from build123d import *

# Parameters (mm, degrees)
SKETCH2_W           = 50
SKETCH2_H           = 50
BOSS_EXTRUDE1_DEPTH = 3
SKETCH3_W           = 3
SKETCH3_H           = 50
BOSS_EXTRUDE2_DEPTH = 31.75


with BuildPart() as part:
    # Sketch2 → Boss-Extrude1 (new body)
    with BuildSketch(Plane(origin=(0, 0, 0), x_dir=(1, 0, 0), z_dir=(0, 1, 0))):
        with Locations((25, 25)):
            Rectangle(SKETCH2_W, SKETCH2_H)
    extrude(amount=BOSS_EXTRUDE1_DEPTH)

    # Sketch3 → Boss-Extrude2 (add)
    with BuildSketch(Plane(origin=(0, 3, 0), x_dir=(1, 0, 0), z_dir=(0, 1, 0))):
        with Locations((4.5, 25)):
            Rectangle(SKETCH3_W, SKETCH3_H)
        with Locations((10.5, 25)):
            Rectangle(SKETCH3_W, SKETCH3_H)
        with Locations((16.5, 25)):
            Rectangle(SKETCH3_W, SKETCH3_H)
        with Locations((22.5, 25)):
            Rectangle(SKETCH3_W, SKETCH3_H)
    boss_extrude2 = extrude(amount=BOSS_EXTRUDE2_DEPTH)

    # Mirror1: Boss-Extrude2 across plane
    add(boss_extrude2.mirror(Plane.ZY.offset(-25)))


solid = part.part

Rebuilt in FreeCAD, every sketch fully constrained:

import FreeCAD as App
import Part
import Sketcher

V = App.Vector
Q = App.Units.Quantity

doc = App.newDocument("Part")
body = doc.addObject("PartDesign::Body", "Body")

# Sketch on XZ plane
sketch1 = body.newObject("Sketcher::SketchObject", "Sketch")
sketch1.AttachmentSupport = (doc.getObject("XZ_Plane"), [""])
sketch1.MapMode = "FlatFace"
sketch1.addGeometry(Part.LineSegment(V(0, -50, 0), V(0, 0, 0)), False)
sketch1.addGeometry(Part.LineSegment(V(0, 0, 0), V(50, 0, 0)), False)
sketch1.addGeometry(Part.LineSegment(V(50, 0, 0), V(50, -50, 0)), False)
sketch1.addGeometry(Part.LineSegment(V(50, -50, 0), V(0, -50, 0)), False)
sketch1.addConstraint(Sketcher.Constraint("Coincident", 0, 2, 1, 1))
sketch1.addConstraint(Sketcher.Constraint("Coincident", 1, 2, 2, 1))
sketch1.addConstraint(Sketcher.Constraint("Coincident", 2, 2, 3, 1))
sketch1.addConstraint(Sketcher.Constraint("Coincident", 3, 2, 0, 1))
sketch1.addConstraint(Sketcher.Constraint("Vertical", 0))
sketch1.addConstraint(Sketcher.Constraint("Horizontal", 1))
sketch1.addConstraint(Sketcher.Constraint("Vertical", 2))
sketch1.addConstraint(Sketcher.Constraint("Horizontal", 3))
sketch1.addConstraint(Sketcher.Constraint("Coincident", 0, 2, -1, 1))
sketch1.addConstraint(Sketcher.Constraint("Equal", 3, 0))
sketch1.addConstraint(Sketcher.Constraint("DistanceX", 1, 1, 1, 2, Q("50 mm")))
pad1 = body.newObject("PartDesign::Pad", "Pad")
pad1.Profile = sketch1
pad1.Length = 3
pad1.Reversed = True

# Sketch on XZ plane
sketch2 = body.newObject("Sketcher::SketchObject", "Sketch001")
sketch2.AttachmentSupport = (doc.getObject("XZ_Plane"), [""])
sketch2.MapMode = "FlatFace"
sketch2.AttachmentOffset = App.Placement(V(0, 0, -3), App.Rotation())
sketch2.addGeometry(Part.LineSegment(V(3, -50, 0), V(3, 0, 0)), False)
sketch2.addGeometry(Part.LineSegment(V(3, 0, 0), V(6, 0, 0)), False)
sketch2.addGeometry(Part.LineSegment(V(6, 0, 0), V(6, -50, 0)), False)
sketch2.addGeometry(Part.LineSegment(V(6, -50, 0), V(3, -50, 0)), False)
sketch2.addGeometry(Part.LineSegment(V(9, -50, 0), V(9, 0, 0)), False)
sketch2.addGeometry(Part.LineSegment(V(9, 0, 0), V(12, 0, 0)), False)
sketch2.addGeometry(Part.LineSegment(V(12, 0, 0), V(12, -50, 0)), False)
sketch2.addGeometry(Part.LineSegment(V(12, -50, 0), V(9, -50, 0)), False)
sketch2.addGeometry(Part.LineSegment(V(15, -50, 0), V(15, 0, 0)), False)
sketch2.addGeometry(Part.LineSegment(V(15, 0, 0), V(18, 0, 0)), False)
sketch2.addGeometry(Part.LineSegment(V(18, 0, 0), V(18, -50, 0)), False)
sketch2.addGeometry(Part.LineSegment(V(18, -50, 0), V(15, -50, 0)), False)
sketch2.addGeometry(Part.LineSegment(V(21, -50, 0), V(21, 0, 0)), False)
sketch2.addGeometry(Part.LineSegment(V(21, 0, 0), V(24, 0, 0)), False)
sketch2.addGeometry(Part.LineSegment(V(24, 0, 0), V(24, -50, 0)), False)
sketch2.addGeometry(Part.LineSegment(V(24, -50, 0), V(21, -50, 0)), False)
sketch2.addConstraint(Sketcher.Constraint("Coincident", 0, 2, 1, 1))
sketch2.addConstraint(Sketcher.Constraint("Coincident", 1, 2, 2, 1))
sketch2.addConstraint(Sketcher.Constraint("Coincident", 2, 2, 3, 1))
sketch2.addConstraint(Sketcher.Constraint("Coincident", 3, 2, 0, 1))
sketch2.addConstraint(Sketcher.Constraint("Coincident", 4, 2, 5, 1))
sketch2.addConstraint(Sketcher.Constraint("Coincident", 5, 2, 6, 1))
sketch2.addConstraint(Sketcher.Constraint("Coincident", 6, 2, 7, 1))
sketch2.addConstraint(Sketcher.Constraint("Coincident", 7, 2, 4, 1))
sketch2.addConstraint(Sketcher.Constraint("Coincident", 8, 2, 9, 1))
sketch2.addConstraint(Sketcher.Constraint("Coincident", 9, 2, 10, 1))
sketch2.addConstraint(Sketcher.Constraint("Coincident", 10, 2, 11, 1))
sketch2.addConstraint(Sketcher.Constraint("Coincident", 11, 2, 8, 1))
sketch2.addConstraint(Sketcher.Constraint("Coincident", 12, 2, 13, 1))
sketch2.addConstraint(Sketcher.Constraint("Coincident", 13, 2, 14, 1))
sketch2.addConstraint(Sketcher.Constraint("Coincident", 14, 2, 15, 1))
sketch2.addConstraint(Sketcher.Constraint("Coincident", 15, 2, 12, 1))
sketch2.addConstraint(Sketcher.Constraint("Vertical", 0))
sketch2.addConstraint(Sketcher.Constraint("Horizontal", 1))
sketch2.addConstraint(Sketcher.Constraint("Vertical", 2))
sketch2.addConstraint(Sketcher.Constraint("Horizontal", 3))
sketch2.addConstraint(Sketcher.Constraint("Vertical", 4))
sketch2.addConstraint(Sketcher.Constraint("Horizontal", 5))
sketch2.addConstraint(Sketcher.Constraint("Vertical", 6))
sketch2.addConstraint(Sketcher.Constraint("Horizontal", 7))
sketch2.addConstraint(Sketcher.Constraint("Vertical", 8))
sketch2.addConstraint(Sketcher.Constraint("Horizontal", 9))
sketch2.addConstraint(Sketcher.Constraint("Vertical", 10))
sketch2.addConstraint(Sketcher.Constraint("Horizontal", 11))
sketch2.addConstraint(Sketcher.Constraint("Vertical", 12))
sketch2.addConstraint(Sketcher.Constraint("Horizontal", 13))
sketch2.addConstraint(Sketcher.Constraint("Vertical", 14))
sketch2.addConstraint(Sketcher.Constraint("Horizontal", 15))
sketch2.addConstraint(Sketcher.Constraint("PointOnObject", 0, 2, -1))
sketch2.addConstraint(Sketcher.Constraint("PointOnObject", 4, 2, -1))
sketch2.addConstraint(Sketcher.Constraint("PointOnObject", 8, 2, -1))
sketch2.addConstraint(Sketcher.Constraint("PointOnObject", 12, 2, -1))
sketch2.addConstraint(Sketcher.Constraint("Horizontal", 3, 2, 6, 2))
sketch2.addConstraint(Sketcher.Constraint("Horizontal", 7, 2, 10, 2))
sketch2.addConstraint(Sketcher.Constraint("Horizontal", 11, 2, 14, 2))
sketch2.addConstraint(Sketcher.Constraint("Equal", 3, 5))
sketch2.addConstraint(Sketcher.Constraint("Equal", 7, 9))
sketch2.addConstraint(Sketcher.Constraint("Equal", 11, 13))
sketch2.addConstraint(Sketcher.Constraint("DistanceX", 1, 1, 1, 2, Q("3 mm")))
sketch2.addConstraint(Sketcher.Constraint("DistanceY", 0, 1, 0, 2, Q("50 mm")))
sketch2.addConstraint(Sketcher.Constraint("DistanceX", -1, 1, 0, 2, Q("3 mm")))
sketch2.addConstraint(Sketcher.Constraint("DistanceX", -1, 1, 4, 2, Q("9 mm")))
sketch2.addConstraint(Sketcher.Constraint("DistanceX", -1, 1, 8, 2, Q("15 mm")))
sketch2.addConstraint(Sketcher.Constraint("DistanceX", -1, 1, 12, 2, Q("21 mm")))
pad2 = body.newObject("PartDesign::Pad", "Pad001")
pad2.Profile = sketch2
pad2.Length = 31.75
pad2.Reversed = True
doc.recompute()

datumplane = body.newObject("PartDesign::Plane", "DatumPlane")
datumplane.AttachmentSupport = (doc.getObject("YZ_Plane"), [""])
datumplane.MapMode = "FlatFace"
datumplane.AttachmentOffset = App.Placement(V(0, 0, 25), App.Rotation())
mirrored = body.newObject("PartDesign::Mirrored", "Mirrored")
mirrored.Originals = [pad2]
mirrored.MirrorPlane = (datumplane, [""])
body.Tip = mirrored

doc.recompute()
